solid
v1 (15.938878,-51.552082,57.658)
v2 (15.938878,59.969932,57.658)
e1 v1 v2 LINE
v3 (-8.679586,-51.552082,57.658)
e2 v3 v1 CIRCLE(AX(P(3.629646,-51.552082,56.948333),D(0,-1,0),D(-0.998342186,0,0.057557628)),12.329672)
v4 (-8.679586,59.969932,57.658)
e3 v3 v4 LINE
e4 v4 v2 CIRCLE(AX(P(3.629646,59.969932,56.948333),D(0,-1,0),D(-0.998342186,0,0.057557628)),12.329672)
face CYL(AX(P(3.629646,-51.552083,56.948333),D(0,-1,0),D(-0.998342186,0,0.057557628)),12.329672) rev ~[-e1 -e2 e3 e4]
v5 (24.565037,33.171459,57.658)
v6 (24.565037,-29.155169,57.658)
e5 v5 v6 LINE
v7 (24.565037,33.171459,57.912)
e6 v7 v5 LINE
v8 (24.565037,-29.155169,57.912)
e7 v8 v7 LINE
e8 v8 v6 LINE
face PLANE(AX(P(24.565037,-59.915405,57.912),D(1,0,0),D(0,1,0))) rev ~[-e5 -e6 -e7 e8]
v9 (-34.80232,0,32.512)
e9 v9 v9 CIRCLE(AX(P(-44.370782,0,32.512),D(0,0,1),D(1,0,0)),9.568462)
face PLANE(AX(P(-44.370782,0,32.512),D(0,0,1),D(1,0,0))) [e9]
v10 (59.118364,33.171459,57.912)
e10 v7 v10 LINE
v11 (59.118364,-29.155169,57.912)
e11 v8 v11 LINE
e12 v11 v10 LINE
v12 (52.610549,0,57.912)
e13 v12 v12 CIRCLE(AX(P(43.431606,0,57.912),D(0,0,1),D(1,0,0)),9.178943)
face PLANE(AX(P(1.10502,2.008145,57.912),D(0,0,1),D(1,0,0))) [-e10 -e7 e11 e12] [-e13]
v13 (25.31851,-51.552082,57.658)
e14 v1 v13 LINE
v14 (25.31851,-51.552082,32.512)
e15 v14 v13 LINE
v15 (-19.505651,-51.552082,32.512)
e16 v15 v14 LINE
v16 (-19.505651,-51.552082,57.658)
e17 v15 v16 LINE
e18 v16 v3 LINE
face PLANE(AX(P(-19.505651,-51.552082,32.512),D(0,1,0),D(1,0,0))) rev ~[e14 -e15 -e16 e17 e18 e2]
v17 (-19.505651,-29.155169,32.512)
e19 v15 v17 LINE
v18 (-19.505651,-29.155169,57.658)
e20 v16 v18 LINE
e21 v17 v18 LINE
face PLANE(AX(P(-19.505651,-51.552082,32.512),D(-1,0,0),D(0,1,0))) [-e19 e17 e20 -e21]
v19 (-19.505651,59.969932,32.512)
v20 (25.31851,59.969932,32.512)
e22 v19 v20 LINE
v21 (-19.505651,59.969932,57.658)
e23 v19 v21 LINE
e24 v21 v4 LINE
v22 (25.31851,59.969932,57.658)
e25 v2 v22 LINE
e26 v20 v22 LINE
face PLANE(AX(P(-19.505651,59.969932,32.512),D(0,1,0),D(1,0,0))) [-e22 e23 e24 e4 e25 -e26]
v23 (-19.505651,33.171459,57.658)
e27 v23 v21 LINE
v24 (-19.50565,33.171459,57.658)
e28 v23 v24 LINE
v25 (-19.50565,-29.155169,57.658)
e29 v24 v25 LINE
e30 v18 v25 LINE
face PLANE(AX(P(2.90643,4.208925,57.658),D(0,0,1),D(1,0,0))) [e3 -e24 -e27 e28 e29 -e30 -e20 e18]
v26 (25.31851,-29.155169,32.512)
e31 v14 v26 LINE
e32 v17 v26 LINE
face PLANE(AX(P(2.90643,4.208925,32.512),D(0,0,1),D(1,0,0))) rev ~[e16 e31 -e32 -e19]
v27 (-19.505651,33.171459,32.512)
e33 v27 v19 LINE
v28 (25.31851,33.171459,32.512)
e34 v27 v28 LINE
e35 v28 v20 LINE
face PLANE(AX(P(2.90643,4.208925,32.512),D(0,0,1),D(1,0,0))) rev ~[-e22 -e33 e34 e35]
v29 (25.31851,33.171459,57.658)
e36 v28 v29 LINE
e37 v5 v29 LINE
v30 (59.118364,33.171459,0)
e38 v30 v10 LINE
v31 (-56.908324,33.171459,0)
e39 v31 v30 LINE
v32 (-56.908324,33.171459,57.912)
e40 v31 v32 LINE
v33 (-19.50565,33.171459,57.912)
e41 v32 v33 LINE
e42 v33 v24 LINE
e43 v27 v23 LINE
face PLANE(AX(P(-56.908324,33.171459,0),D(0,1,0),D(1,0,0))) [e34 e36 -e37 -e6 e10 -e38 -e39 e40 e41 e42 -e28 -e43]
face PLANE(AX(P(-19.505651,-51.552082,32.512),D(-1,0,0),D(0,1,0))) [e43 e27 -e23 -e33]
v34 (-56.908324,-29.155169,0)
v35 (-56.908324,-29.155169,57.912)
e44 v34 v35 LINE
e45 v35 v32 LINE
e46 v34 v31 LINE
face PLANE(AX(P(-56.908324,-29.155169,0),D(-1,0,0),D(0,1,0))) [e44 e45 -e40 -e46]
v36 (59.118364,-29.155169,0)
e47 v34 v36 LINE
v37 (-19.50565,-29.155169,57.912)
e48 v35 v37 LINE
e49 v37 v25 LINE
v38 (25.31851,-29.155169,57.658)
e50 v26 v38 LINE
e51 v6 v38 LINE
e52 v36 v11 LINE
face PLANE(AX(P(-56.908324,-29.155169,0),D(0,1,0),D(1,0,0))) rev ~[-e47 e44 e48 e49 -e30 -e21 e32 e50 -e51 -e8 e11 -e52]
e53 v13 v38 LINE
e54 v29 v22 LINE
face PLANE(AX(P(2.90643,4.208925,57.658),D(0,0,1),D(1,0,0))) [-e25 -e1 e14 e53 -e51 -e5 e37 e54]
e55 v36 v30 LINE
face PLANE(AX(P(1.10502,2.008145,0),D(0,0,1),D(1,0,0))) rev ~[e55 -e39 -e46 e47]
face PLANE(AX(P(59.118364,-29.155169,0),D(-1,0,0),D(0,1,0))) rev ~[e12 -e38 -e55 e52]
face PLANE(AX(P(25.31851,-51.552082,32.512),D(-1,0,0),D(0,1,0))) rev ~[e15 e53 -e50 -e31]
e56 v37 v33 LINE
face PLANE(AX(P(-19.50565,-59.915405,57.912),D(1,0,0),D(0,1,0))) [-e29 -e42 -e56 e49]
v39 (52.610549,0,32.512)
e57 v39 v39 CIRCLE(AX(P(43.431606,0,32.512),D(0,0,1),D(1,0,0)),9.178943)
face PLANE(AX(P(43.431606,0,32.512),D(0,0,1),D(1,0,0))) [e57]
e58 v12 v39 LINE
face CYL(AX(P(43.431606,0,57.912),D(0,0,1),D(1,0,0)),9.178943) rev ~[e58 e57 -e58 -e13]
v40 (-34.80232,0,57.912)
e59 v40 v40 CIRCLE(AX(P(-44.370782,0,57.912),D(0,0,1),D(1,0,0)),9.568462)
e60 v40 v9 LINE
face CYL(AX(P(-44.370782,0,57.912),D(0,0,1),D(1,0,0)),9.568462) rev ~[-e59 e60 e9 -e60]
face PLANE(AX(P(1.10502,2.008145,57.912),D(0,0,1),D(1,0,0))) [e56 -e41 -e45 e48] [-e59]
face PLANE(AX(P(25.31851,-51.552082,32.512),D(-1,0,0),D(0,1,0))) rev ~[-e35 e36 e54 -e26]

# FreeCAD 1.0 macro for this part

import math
import FreeCAD as App
import Part
import Sketcher

V = App.Vector
Q = App.Units.Quantity


def add_polygon(sketch, points):
    """Adds a closed chain of lines whose ends are joined by coincident constraints."""
    first, n = sketch.GeometryCount, len(points)
    for a, b in zip(points, points[1:] + points[:1]):
        sketch.addGeometry(Part.LineSegment(App.Vector(*a, 0), App.Vector(*b, 0)), False)
    for i in range(n):
        sketch.addConstraint(Sketcher.Constraint("Coincident", first + i, 2, first + (i + 1) % n, 1))

doc = App.newDocument("Part")
body = doc.addObject("PartDesign::Body", "Body")

sketch1 = doc.addObject("Sketcher::SketchObject", "Sketch")
body.addObject(sketch1)
sketch1.AttachmentSupport = (doc.XY_Plane, [""])
sketch1.MapMode = "FlatFace"
add_polygon(sketch1, [(-57, 33), (-57, -29), (59, -29), (59, 33)])
sketch1.addConstraint([
    Sketcher.Constraint("Vertical", 0),
    Sketcher.Constraint("Horizontal", 1),
    Sketcher.Constraint("Vertical", 2),
    Sketcher.Constraint("Horizontal", 3),
    Sketcher.Constraint("DistanceX", 1, 1, 1, 2, 116.026688),
    Sketcher.Constraint("DistanceY", 0, 2, 0, 1, 62.326629),
    Sketcher.Constraint("DistanceY", 0, 2, -1, 1, 29.155169),
    Sketcher.Constraint("DistanceX", 0, 2, -1, 1, 56.908324),
])
pad1 = doc.addObject("PartDesign::Pad", "Pad")
body.addObject(pad1)
pad1.Profile = sketch1
pad1.Length = Q("2.28 in")

sketch2 = doc.addObject("Sketcher::SketchObject", "Sketch001")
body.addObject(sketch2)
sketch2.AttachmentSupport = (doc.XY_Plane, [""])
sketch2.MapMode = "FlatFace"
sketch2.AttachmentOffset = App.Placement(V(0, 0, 2.28 * 25.4), App.Rotation())
sketch2.addGeometry([
    Part.Circle(V(43, 0, 0), V(0, 0, 1), 9),
    Part.Circle(V(-44, 0, 0), V(0, 0, 1), 10),
], False)
sketch2.addConstraint([
    Sketcher.Constraint("PointOnObject", 0, 3, -1),
    Sketcher.Constraint("PointOnObject", 1, 3, -1),
    Sketcher.Constraint("Diameter", 0, 18.357886),
    Sketcher.Constraint("Diameter", 1, 19.136924),
    Sketcher.Constraint("DistanceX", 1, 3, -1, 1, 44.370782),
    Sketcher.Constraint("DistanceX", 1, 3, 0, 3, 87.802388),
])
pocket1 = doc.addObject("PartDesign::Pocket", "Pocket")
body.addObject(pocket1)
pocket1.Profile = sketch2
pocket1.Length = Q("1 in")

sketch3 = doc.addObject("Sketcher::SketchObject", "Sketch002")
body.addObject(sketch3)
sketch3.AttachmentSupport = (doc.XY_Plane, [""])
sketch3.MapMode = "FlatFace"
sketch3.AttachmentOffset = App.Placement(V(0, 0, 2.28 * 25.4), App.Rotation())
add_polygon(sketch3, [(-20, 59), (-20, -60), (25, -60), (25, 59)])
sketch3.addConstraint([
    Sketcher.Constraint("Vertical", 0),
    Sketcher.Constraint("Horizontal", 1),
    Sketcher.Constraint("Vertical", 2),
    Sketcher.Constraint("Horizontal", 3),
    Sketcher.Constraint("DistanceX", 1, 1, 1, 2, 44.070687),
    Sketcher.Constraint("DistanceY", 0, 2, 0, 1, 119.394876),
    Sketcher.Constraint("DistanceX", 0, 2, -1, 1, 19.50565),
    Sketcher.Constraint("DistanceY", -1, 1, 2, 2, 59.479471),
])
pocket2 = doc.addObject("PartDesign::Pocket", "Pocket001")
body.addObject(pocket2)
pocket2.Profile = sketch3
pocket2.Length = Q("1 in")

sketch4 = doc.addObject("Sketcher::SketchObject", "Sketch003")
body.addObject(sketch4)
sketch4.AttachmentSupport = (doc.XY_Plane, [""])
sketch4.MapMode = "FlatFace"
sketch4.AttachmentOffset = App.Placement(V(0, 0, 1.28 * 25.4), App.Rotation())
add_polygon(sketch4, [(-20, 60), (-20, -52), (25, -52), (25, 60)])
sketch4.addConstraint([
    Sketcher.Constraint("Vertical", 0),
    Sketcher.Constraint("Horizontal", 1),
    Sketcher.Constraint("Vertical", 2),
    Sketcher.Constraint("Horizontal", 3),
    Sketcher.Constraint("DistanceX", 1, 1, 1, 2, 44.824161),
    Sketcher.Constraint("DistanceY", 0, 2, 0, 1, 111.522015),
    Sketcher.Constraint("DistanceX", 0, 2, -1, 1, 19.505651),
    Sketcher.Constraint("DistanceY", 0, 2, -1, 1, 51.552082),
])
pad2 = doc.addObject("PartDesign::Pad", "Pad001")
body.addObject(pad2)
pad2.Profile = sketch4
pad2.Length = Q("0.99 in")

sketch5 = doc.addObject("Sketcher::SketchObject", "Sketch004")
body.addObject(sketch5)
sketch5.AttachmentSupport = (doc.XZ_Plane, [""])
sketch5.MapMode = "FlatFace"
sketch5.AttachmentOffset = App.Placement(V(0, 0, 51.552083), App.Rotation())
sketch5.addGeometry([
    Part.LineSegment(V(16, 58, 0), V(-9, 58, 0)),
    Part.ArcOfCircle(Part.Circle(V(4, 57, 0), V(0, 0, 1), 12), math.radians(177), math.radians(363)),
], False)
sketch5.addConstraint([
    Sketcher.Constraint("Coincident", 0, 1, 1, 2),
    Sketcher.Constraint("Coincident", 1, 1, 0, 2),
    Sketcher.Constraint("Horizontal", 0),
    Sketcher.Constraint("DistanceY", -1, 1, 0, 1, Q("2.27 in")),
    Sketcher.Constraint("Radius", 1, 12.329672),
    Sketcher.Constraint("DistanceX", 0, 2, 0, 1, 24.618464),
    Sketcher.Constraint("DistanceX", -1, 1, 0, 1, 15.938878),
])
pocket3 = doc.addObject("PartDesign::Pocket", "Pocket002")
body.addObject(pocket3)
pocket3.Profile = sketch5
pocket3.Length = Q("5.49 in")

doc.recompute()
